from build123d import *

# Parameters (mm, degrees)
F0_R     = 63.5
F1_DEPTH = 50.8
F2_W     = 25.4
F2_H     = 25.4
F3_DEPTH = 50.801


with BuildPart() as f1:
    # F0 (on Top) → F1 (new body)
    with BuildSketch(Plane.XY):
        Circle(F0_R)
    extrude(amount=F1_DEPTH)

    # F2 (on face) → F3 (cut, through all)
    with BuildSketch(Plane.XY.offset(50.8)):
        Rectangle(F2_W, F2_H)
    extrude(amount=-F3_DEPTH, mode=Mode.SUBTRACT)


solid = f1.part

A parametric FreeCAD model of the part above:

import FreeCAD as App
import Part
import Sketcher
from FreeCAD import Vector
Q = App.Units.Quantity


def add_polygon(sketch, points):
    """Adds a closed chain of lines whose ends are joined by coincident constraints."""
    first, n = sketch.GeometryCount, len(points)
    for a, b in zip(points, points[1:] + points[:1]):
        sketch.addGeometry(Part.LineSegment(App.Vector(*a, 0), App.Vector(*b, 0)), False)
    for i in range(n):
        sketch.addConstraint(Sketcher.Constraint("Coincident", first + i, 2, first + (i + 1) % n, 1))

doc = App.newDocument("Part")
body = doc.addObject("PartDesign::Body", "Body")

# Sketch on XY plane
sketch1 = body.newObject("Sketcher::SketchObject", "Sketch")
sketch1.AttachmentSupport = (doc.getObject("XY_Plane"), [""])
sketch1.MapMode = "FlatFace"
sketch1.addGeometry(Part.Circle(Vector(0, 0, 0), Vector(0, 0, 1), 64), False)
sketch1.addConstraint([
    Sketcher.Constraint("Coincident", 0, 3, -1, 1),
    Sketcher.Constraint("Diameter", 0, Q("5 in")),
])
pad1 = body.newObject("PartDesign::Pad", "Pad")
pad1.Profile = sketch1
pad1.Length = Q("2 in")

# Sketch on XY plane
sketch2 = body.newObject("Sketcher::SketchObject", "Sketch001")
sketch2.AttachmentSupport = (doc.getObject("XY_Plane"), [""])
sketch2.MapMode = "FlatFace"
sketch2.AttachmentOffset = App.Placement(Vector(0, 0, 2 * 25.4), App.Rotation())
add_polygon(sketch2, [(-13, 13), (-13, -13), (13, -13), (13, 13)])  # lines 0-3
sketch2.addConstraint([
    Sketcher.Constraint("Vertical", 0),
    Sketcher.Constraint("Horizontal", 1),
    Sketcher.Constraint("Vertical", 2),
    Sketcher.Constraint("Horizontal", 3),
    Sketcher.Constraint("Symmetric", 0, 2, 2, 2, -1, 1),
    Sketcher.Constraint("Equal", 3, 0),
    Sketcher.Constraint("DistanceX", 1, 1, 1, 2, Q("1 in")),
])
pocket1 = body.newObject("PartDesign::Pocket", "Pocket")
pocket1.Profile = sketch2
pocket1.Type = "ThroughAll"

doc.recompute()
